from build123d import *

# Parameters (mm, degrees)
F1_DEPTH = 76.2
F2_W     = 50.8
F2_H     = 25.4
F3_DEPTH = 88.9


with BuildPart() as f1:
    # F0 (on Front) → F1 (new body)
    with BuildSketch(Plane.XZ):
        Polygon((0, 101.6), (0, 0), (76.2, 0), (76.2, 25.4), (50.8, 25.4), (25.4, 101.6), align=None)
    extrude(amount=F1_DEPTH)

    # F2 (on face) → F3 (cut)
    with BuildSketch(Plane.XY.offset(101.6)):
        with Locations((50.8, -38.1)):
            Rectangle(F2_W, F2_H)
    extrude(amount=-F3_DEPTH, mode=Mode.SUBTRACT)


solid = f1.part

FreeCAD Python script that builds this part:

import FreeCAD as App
import Part
import Sketcher

V = App.Vector
Q = App.Units.Quantity


def add_polygon(sketch, points):
    """Adds a closed chain of lines whose ends are joined by coincident constraints."""
    first, n = sketch.GeometryCount, len(points)
    for a, b in zip(points, points[1:] + points[:1]):
        sketch.addGeometry(Part.LineSegment(App.Vector(*a, 0), App.Vector(*b, 0)), False)
    for i in range(n):
        sketch.addConstraint(Sketcher.Constraint("Coincident", first + i, 2, first + (i + 1) % n, 1))

doc = App.newDocument("Part")
body = doc.addObject("PartDesign::Body", "Body")

# Sketch on XZ plane
sketch1 = body.newObject("Sketcher::SketchObject", "Sketch")
sketch1.AttachmentSupport = (doc.getObject("XZ_Plane"), [""])
sketch1.MapMode = "FlatFace"
add_polygon(sketch1, [(0, 102), (0, 0), (76, 0), (76, 25), (51, 25), (25, 102)])  # lines 0-5
sketch1.addConstraint([
    Sketcher.Constraint("Vertical", 0),
    Sketcher.Constraint("Horizontal", 1),
    Sketcher.Constraint("Vertical", 2),
    Sketcher.Constraint("Horizontal", 3),
    Sketcher.Constraint("Horizontal", 5),
    Sketcher.Constraint("Coincident", 0, 2, -1, 1),
    Sketcher.Constraint("Equal", 3, 5),
    Sketcher.Constraint("Equal", 5, 2),
    Sketcher.Constraint("DistanceX", 1, 1, 1, 2, Q("3 in")),
    Sketcher.Constraint("DistanceX", 3, 2, 3, 1, Q("1 in")),
    Sketcher.Constraint("DistanceY", 0, 2, 0, 1, Q("4 in")),
])
pad1 = body.newObject("PartDesign::Pad", "Pad")
pad1.Profile = sketch1
pad1.Length = Q("3 in")

# Sketch on XY plane
sketch2 = body.newObject("Sketcher::SketchObject", "Sketch001")
sketch2.AttachmentSupport = (doc.getObject("XY_Plane"), [""])
sketch2.MapMode = "FlatFace"
sketch2.AttachmentOffset = App.Placement(V(0, 0, 4 * 25.4), App.Rotation())
add_polygon(sketch2, [(25, -25), (25, -51), (76, -51), (76, -25)])  # lines 0-3
sketch2.addConstraint([
    Sketcher.Constraint("Vertical", 0),
    Sketcher.Constraint("Horizontal", 1),
    Sketcher.Constraint("Vertical", 2),
    Sketcher.Constraint("Horizontal", 3),
    Sketcher.Constraint("DistanceX", 1, 1, 1, 2, Q("2 in")),
    Sketcher.Constraint("DistanceY", 0, 2, 0, 1, Q("1 in")),
    Sketcher.Constraint("DistanceX", -1, 1, 0, 2, Q("1 in")),
    Sketcher.Constraint("DistanceY", 0, 2, -1, 1, Q("2 in")),
])
pocket1 = body.newObject("PartDesign::Pocket", "Pocket")
pocket1.Profile = sketch2
pocket1.Length = Q("3.5 in")

doc.recompute()
